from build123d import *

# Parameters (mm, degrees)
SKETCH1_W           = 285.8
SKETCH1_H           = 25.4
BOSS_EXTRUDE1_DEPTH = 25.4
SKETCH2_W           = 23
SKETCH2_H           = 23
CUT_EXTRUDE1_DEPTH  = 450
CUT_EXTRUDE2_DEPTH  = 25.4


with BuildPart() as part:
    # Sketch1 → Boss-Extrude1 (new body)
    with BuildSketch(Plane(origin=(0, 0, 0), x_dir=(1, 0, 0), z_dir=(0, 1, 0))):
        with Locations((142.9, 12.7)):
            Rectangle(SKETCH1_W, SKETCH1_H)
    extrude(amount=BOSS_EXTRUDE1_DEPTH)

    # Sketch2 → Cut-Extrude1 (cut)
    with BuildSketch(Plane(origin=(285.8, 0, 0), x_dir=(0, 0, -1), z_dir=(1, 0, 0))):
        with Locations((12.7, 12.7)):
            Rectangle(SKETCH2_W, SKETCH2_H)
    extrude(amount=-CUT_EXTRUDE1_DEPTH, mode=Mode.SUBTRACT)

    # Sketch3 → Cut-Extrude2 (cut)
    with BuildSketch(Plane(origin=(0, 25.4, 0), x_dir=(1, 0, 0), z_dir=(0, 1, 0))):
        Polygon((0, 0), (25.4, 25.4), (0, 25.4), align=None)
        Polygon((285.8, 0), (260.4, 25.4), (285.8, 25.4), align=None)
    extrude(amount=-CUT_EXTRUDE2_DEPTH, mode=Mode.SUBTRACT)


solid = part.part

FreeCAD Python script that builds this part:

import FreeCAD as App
import Part
import Sketcher
Q = App.Units.Quantity

doc = App.newDocument("Part")
params = doc.addObject("Spreadsheet::Sheet", "Params")
for row, (alias, value) in enumerate([
    ("sketch1_width", "285.8 mm"),
    ("sketch1_height", "25.4 mm"),
    ("pad1_length", "25.4 mm"),
    ("sketch2_width", "23 mm"),
    ("pocket1_length", "450 mm"),
    ("sketch3_width", "25.4 mm"),
    ("pocket2_length", "25.4 mm"),
], start=1):
    params.set(f"A{row}", alias)
    params.set(f"B{row}", "=" + value)
    params.setAlias(f"B{row}", alias)

body = doc.addObject("PartDesign::Body", "Body")

# Sketch on XZ plane
sketch1 = body.newObject("Sketcher::SketchObject", "Sketch")
sketch1.AttachmentSupport = (doc.getObject("XZ_Plane"), [""])
sketch1.MapMode = "FlatFace"
sketch1.addGeometry([
    Part.LineSegment(App.Vector(0, -25, 0), App.Vector(0, 0, 0)),
    Part.LineSegment(App.Vector(0, 0, 0), App.Vector(286, 0, 0)),
    Part.LineSegment(App.Vector(286, 0, 0), App.Vector(286, -25, 0)),
    Part.LineSegment(App.Vector(286, -25, 0), App.Vector(0, -25, 0)),
], False)
sketch1.addConstraint([
    Sketcher.Constraint("Coincident", 0, 2, 1, 1),
    Sketcher.Constraint("Coincident", 1, 2, 2, 1),
    Sketcher.Constraint("Coincident", 2, 2, 3, 1),
    Sketcher.Constraint("Coincident", 3, 2, 0, 1),
    Sketcher.Constraint("Vertical", 0),
    Sketcher.Constraint("Horizontal", 1),
    Sketcher.Constraint("Vertical", 2),
    Sketcher.Constraint("Horizontal", 3),
    Sketcher.Constraint("Coincident", 0, 2, -1, 1),
    Sketcher.Constraint("DistanceX", 1, 1, 1, 2, Q("285.8 mm")),
    Sketcher.Constraint("DistanceY", 0, 1, 0, 2, Q("25.4 mm")),
])
sketch1.setExpression("Constraints[9]", "Params.sketch1_width")
sketch1.setExpression("Constraints[10]", "Params.sketch1_height")
pad1 = body.newObject("PartDesign::Pad", "Pad")
pad1.Profile = sketch1
pad1.setExpression("Length", "Params.pad1_length")
pad1.Reversed = True

# Sketch on YZ plane
sketch2 = body.newObject("Sketcher::SketchObject", "Sketch001")
sketch2.AttachmentSupport = (doc.getObject("YZ_Plane"), [""])
sketch2.MapMode = "FlatFace"
sketch2.AttachmentOffset = App.Placement(App.Vector(0, 0, 285.8), App.Rotation())
sketch2.addGeometry([
    Part.LineSegment(App.Vector(24, -1, 0), App.Vector(1, -1, 0)),
    Part.LineSegment(App.Vector(1, -1, 0), App.Vector(1, -24, 0)),
    Part.LineSegment(App.Vector(1, -24, 0), App.Vector(24, -24, 0)),
    Part.LineSegment(App.Vector(24, -24, 0), App.Vector(24, -1, 0)),
], False)
sketch2.addConstraint([
    Sketcher.Constraint("Coincident", 0, 2, 1, 1),
    Sketcher.Constraint("Coincident", 1, 2, 2, 1),
    Sketcher.Constraint("Coincident", 2, 2, 3, 1),
    Sketcher.Constraint("Coincident", 3, 2, 0, 1),
    Sketcher.Constraint("Horizontal", 0),
    Sketcher.Constraint("Vertical", 1),
    Sketcher.Constraint("Horizontal", 2),
    Sketcher.Constraint("Vertical", 3),
    Sketcher.Constraint("Equal", 2, 1),
    Sketcher.Constraint("DistanceX", 0, 2, 0, 1, Q("23 mm")),
    Sketcher.Constraint("DistanceX", -1, 1, 0, 2, Q("1.2 mm")),
    Sketcher.Constraint("DistanceY", 0, 2, -1, 1, Q("1.2 mm")),
])
sketch2.setExpression("Constraints[9]", "Params.sketch2_width")
pocket1 = body.newObject("PartDesign::Pocket", "Pocket")
pocket1.Profile = sketch2
pocket1.setExpression("Length", "Params.pocket1_length")

# Sketch on XZ plane
sketch3 = body.newObject("Sketcher::SketchObject", "Sketch002")
sketch3.AttachmentSupport = (doc.getObject("XZ_Plane"), [""])
sketch3.MapMode = "FlatFace"
sketch3.AttachmentOffset = App.Placement(App.Vector(0, 0, -25.4), App.Rotation())
sketch3.addGeometry([
    Part.LineSegment(App.Vector(0, 0, 0), App.Vector(25, -25, 0)),  # 0
    Part.LineSegment(App.Vector(25, -25, 0), App.Vector(0, -25, 0)),  # 1
    Part.LineSegment(App.Vector(0, -25, 0), App.Vector(0, 0, 0)),  # 2
    Part.LineSegment(App.Vector(260, -25, 0), App.Vector(286, 0, 0)),  # 3
    Part.LineSegment(App.Vector(286, 0, 0), App.Vector(286, -25, 0)),  # 4
    Part.LineSegment(App.Vector(286, -25, 0), App.Vector(260, -25, 0)),  # 5
], False)
sketch3.addConstraint([
    Sketcher.Constraint("Coincident", 0, 2, 1, 1),
    Sketcher.Constraint("Coincident", 1, 2, 2, 1),
    Sketcher.Constraint("Coincident", 2, 2, 0, 1),
    Sketcher.Constraint("Coincident", 3, 2, 4, 1),
    Sketcher.Constraint("Coincident", 4, 2, 5, 1),
    Sketcher.Constraint("Coincident", 5, 2, 3, 1),
    Sketcher.Constraint("Horizontal", 1),
    Sketcher.Constraint("Vertical", 2),
    Sketcher.Constraint("Vertical", 4),
    Sketcher.Constraint("Horizontal", 5),
    Sketcher.Constraint("Coincident", 2, 2, -1, 1),
    Sketcher.Constraint("PointOnObject", 3, 2, -1),
    Sketcher.Constraint("Perpendicular", 0, 3),
    Sketcher.Constraint("Horizontal", 1, 2, 4, 2),
    Sketcher.Constraint("Equal", 1, 5),
    Sketcher.Constraint("DistanceX", 1, 2, 1, 1, Q("25.4 mm")),
    Sketcher.Constraint("DistanceX", 0, 2, 5, 2, Q("235 mm")),
])
sketch3.setExpression("Constraints[15]", "Params.sketch3_width")
pocket2 = body.newObject("PartDesign::Pocket", "Pocket001")
pocket2.Profile = sketch3
pocket2.setExpression("Length", "Params.pocket2_length")
pocket2.Reversed = True

doc.recompute()
